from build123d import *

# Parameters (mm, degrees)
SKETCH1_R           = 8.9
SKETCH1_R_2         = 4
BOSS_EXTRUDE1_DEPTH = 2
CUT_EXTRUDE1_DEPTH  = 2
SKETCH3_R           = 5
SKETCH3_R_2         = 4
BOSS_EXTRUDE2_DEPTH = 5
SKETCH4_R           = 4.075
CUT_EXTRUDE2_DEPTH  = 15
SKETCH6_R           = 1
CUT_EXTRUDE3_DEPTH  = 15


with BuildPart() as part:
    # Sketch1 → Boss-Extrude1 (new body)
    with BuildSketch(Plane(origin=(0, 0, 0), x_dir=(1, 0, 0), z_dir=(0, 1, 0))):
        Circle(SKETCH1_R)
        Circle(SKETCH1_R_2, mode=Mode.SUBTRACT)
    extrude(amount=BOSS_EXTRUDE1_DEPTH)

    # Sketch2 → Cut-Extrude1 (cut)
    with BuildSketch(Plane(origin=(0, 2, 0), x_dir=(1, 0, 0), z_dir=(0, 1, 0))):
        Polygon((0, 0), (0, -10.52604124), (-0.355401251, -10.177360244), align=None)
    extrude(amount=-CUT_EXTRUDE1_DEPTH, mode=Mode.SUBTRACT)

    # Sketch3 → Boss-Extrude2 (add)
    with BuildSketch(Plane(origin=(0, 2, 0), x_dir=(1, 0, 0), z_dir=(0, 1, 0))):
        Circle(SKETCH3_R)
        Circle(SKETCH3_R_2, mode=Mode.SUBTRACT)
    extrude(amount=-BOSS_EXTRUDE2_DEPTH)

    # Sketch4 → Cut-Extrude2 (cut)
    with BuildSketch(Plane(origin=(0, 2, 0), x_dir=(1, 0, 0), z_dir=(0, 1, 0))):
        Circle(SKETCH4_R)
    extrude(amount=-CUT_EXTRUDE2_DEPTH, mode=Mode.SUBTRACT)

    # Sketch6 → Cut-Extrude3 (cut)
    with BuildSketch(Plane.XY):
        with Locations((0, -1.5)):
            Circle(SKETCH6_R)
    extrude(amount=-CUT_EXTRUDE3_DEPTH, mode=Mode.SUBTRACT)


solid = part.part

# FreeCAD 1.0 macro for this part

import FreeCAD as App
import Part
import Sketcher
Q = App.Units.Quantity


def add_polygon(sketch, points):
    """Adds a closed chain of lines whose ends are joined by coincident constraints."""
    first, n = sketch.GeometryCount, len(points)
    for a, b in zip(points, points[1:] + points[:1]):
        sketch.addGeometry(Part.LineSegment(App.Vector(*a, 0), App.Vector(*b, 0)), False)
    for i in range(n):
        sketch.addConstraint(Sketcher.Constraint("Coincident", first + i, 2, first + (i + 1) % n, 1))

doc = App.newDocument("Part")
params = doc.addObject("Spreadsheet::Sheet", "Params")
for row, (alias, value) in enumerate([
    ("sketch1_diameter", "8 mm"),
    ("sketch1_diameter2", "17.8 mm"),
    ("pad1_length", "2 mm"),
    ("pocket1_length", "2 mm"),
    ("sketch3_diameter", "10 mm"),
    ("sketch3_diameter2", "8 mm"),
    ("pad2_length", "5 mm"),
    ("sketch4_diameter", "8.15 mm"),
    ("pocket2_length", "15 mm"),
    ("sketch5_diameter", "2 mm"),
    ("pocket3_length", "15 mm"),
], start=1):
    params.set(f"A{row}", alias)
    params.set(f"B{row}", "=" + value)
    params.setAlias(f"B{row}", alias)

body = doc.addObject("PartDesign::Body", "Body")

sketch1 = body.newObject("Sketcher::SketchObject", "Sketch")
sketch1.AttachmentSupport = (doc.getObject("XZ_Plane"), [""])
sketch1.MapMode = "FlatFace"
sketch1.addGeometry([
    Part.Circle(App.Vector(0, 0, 0), App.Vector(0, 0, 1), 8.9),
    Part.Circle(App.Vector(0, 0, 0), App.Vector(0, 0, 1), 4),
], False)
sketch1.addConstraint([
    Sketcher.Constraint("Coincident", 0, 3, -1, 1),
    Sketcher.Constraint("Coincident", 1, 3, -1, 1),
    Sketcher.Constraint("Diameter", 1, 8.0),
    Sketcher.Constraint("Diameter", 0, 17.8),
])
sketch1.setExpression("Constraints[2]", "Params.sketch1_diameter")
sketch1.setExpression("Constraints[3]", "Params.sketch1_diameter2")
pad1 = body.newObject("PartDesign::Pad", "Pad")
pad1.Profile = sketch1
pad1.setExpression("Length", "Params.pad1_length")
pad1.Reversed = True

sketch2 = body.newObject("Sketcher::SketchObject", "Sketch001")
sketch2.AttachmentSupport = (doc.getObject("XZ_Plane"), [""])
sketch2.MapMode = "FlatFace"
sketch2.AttachmentOffset = App.Placement(App.Vector(0, 0, -2), App.Rotation())
add_polygon(sketch2, [(0, 10.53), (0, 0), (-0.36, 10.18)])
sketch2.addConstraint([
    Sketcher.Constraint("Vertical", 0),
    Sketcher.Constraint("Coincident", 0, 2, -1, 1),
    Sketcher.Constraint("Angle", 1, Q("92 deg")),
    Sketcher.Constraint("DistanceY", 0, 2, 0, 1, 10.526041),
    Sketcher.Constraint("DistanceX", 1, 2, -1, 1, 0.355401),
])
pocket1 = body.newObject("PartDesign::Pocket", "Pocket")
pocket1.Profile = sketch2
pocket1.setExpression("Length", "Params.pocket1_length")
pocket1.Reversed = True

sketch3 = body.newObject("Sketcher::SketchObject", "Sketch002")
sketch3.AttachmentSupport = (doc.getObject("XZ_Plane"), [""])
sketch3.MapMode = "FlatFace"
sketch3.AttachmentOffset = App.Placement(App.Vector(0, 0, -2), App.Rotation())
sketch3.addGeometry([
    Part.Circle(App.Vector(0, 0, 0), App.Vector(0, 0, 1), 5),
    Part.Circle(App.Vector(0, 0, 0), App.Vector(0, 0, 1), 4),
], False)
sketch3.addConstraint([
    Sketcher.Constraint("Coincident", 0, 3, -1, 1),
    Sketcher.Constraint("Coincident", 1, 3, -1, 1),
    Sketcher.Constraint("Diameter", 0, 10.0),
    Sketcher.Constraint("Diameter", 1, 8.0),
])
sketch3.setExpression("Constraints[2]", "Params.sketch3_diameter")
sketch3.setExpression("Constraints[3]", "Params.sketch3_diameter2")
pad2 = body.newObject("PartDesign::Pad", "Pad001")
pad2.Profile = sketch3
pad2.setExpression("Length", "Params.pad2_length")

sketch4 = body.newObject("Sketcher::SketchObject", "Sketch003")
sketch4.AttachmentSupport = (doc.getObject("XZ_Plane"), [""])
sketch4.MapMode = "FlatFace"
sketch4.AttachmentOffset = App.Placement(App.Vector(0, 0, -2), App.Rotation())
sketch4.addGeometry(Part.Circle(App.Vector(0, 0, 0), App.Vector(0, 0, 1), 4.1), False)
sketch4.addConstraint([
    Sketcher.Constraint("Coincident", 0, 3, -1, 1),
    Sketcher.Constraint("Diameter", 0, 8.15),
])
sketch4.setExpression("Constraints[1]", "Params.sketch4_diameter")
pocket2 = body.newObject("PartDesign::Pocket", "Pocket001")
pocket2.Profile = sketch4
pocket2.setExpression("Length", "Params.pocket2_length")
pocket2.Reversed = True

sketch5 = body.newObject("Sketcher::SketchObject", "Sketch004")
sketch5.AttachmentSupport = (doc.getObject("XY_Plane"), [""])
sketch5.MapMode = "FlatFace"
sketch5.addGeometry(Part.Circle(App.Vector(0, -1.5, 0), App.Vector(0, 0, 1), 1), False)
sketch5.addConstraint([
    Sketcher.Constraint("PointOnObject", 0, 3, -2),
    Sketcher.Constraint("Diameter", 0, 2.0),
    Sketcher.Constraint("DistanceY", 0, 3, -1, 1, 1.5),
])
sketch5.setExpression("Constraints[1]", "Params.sketch5_diameter")
pocket3 = body.newObject("PartDesign::Pocket", "Pocket002")
pocket3.Profile = sketch5
pocket3.setExpression("Length", "Params.pocket3_length")

doc.recompute()
